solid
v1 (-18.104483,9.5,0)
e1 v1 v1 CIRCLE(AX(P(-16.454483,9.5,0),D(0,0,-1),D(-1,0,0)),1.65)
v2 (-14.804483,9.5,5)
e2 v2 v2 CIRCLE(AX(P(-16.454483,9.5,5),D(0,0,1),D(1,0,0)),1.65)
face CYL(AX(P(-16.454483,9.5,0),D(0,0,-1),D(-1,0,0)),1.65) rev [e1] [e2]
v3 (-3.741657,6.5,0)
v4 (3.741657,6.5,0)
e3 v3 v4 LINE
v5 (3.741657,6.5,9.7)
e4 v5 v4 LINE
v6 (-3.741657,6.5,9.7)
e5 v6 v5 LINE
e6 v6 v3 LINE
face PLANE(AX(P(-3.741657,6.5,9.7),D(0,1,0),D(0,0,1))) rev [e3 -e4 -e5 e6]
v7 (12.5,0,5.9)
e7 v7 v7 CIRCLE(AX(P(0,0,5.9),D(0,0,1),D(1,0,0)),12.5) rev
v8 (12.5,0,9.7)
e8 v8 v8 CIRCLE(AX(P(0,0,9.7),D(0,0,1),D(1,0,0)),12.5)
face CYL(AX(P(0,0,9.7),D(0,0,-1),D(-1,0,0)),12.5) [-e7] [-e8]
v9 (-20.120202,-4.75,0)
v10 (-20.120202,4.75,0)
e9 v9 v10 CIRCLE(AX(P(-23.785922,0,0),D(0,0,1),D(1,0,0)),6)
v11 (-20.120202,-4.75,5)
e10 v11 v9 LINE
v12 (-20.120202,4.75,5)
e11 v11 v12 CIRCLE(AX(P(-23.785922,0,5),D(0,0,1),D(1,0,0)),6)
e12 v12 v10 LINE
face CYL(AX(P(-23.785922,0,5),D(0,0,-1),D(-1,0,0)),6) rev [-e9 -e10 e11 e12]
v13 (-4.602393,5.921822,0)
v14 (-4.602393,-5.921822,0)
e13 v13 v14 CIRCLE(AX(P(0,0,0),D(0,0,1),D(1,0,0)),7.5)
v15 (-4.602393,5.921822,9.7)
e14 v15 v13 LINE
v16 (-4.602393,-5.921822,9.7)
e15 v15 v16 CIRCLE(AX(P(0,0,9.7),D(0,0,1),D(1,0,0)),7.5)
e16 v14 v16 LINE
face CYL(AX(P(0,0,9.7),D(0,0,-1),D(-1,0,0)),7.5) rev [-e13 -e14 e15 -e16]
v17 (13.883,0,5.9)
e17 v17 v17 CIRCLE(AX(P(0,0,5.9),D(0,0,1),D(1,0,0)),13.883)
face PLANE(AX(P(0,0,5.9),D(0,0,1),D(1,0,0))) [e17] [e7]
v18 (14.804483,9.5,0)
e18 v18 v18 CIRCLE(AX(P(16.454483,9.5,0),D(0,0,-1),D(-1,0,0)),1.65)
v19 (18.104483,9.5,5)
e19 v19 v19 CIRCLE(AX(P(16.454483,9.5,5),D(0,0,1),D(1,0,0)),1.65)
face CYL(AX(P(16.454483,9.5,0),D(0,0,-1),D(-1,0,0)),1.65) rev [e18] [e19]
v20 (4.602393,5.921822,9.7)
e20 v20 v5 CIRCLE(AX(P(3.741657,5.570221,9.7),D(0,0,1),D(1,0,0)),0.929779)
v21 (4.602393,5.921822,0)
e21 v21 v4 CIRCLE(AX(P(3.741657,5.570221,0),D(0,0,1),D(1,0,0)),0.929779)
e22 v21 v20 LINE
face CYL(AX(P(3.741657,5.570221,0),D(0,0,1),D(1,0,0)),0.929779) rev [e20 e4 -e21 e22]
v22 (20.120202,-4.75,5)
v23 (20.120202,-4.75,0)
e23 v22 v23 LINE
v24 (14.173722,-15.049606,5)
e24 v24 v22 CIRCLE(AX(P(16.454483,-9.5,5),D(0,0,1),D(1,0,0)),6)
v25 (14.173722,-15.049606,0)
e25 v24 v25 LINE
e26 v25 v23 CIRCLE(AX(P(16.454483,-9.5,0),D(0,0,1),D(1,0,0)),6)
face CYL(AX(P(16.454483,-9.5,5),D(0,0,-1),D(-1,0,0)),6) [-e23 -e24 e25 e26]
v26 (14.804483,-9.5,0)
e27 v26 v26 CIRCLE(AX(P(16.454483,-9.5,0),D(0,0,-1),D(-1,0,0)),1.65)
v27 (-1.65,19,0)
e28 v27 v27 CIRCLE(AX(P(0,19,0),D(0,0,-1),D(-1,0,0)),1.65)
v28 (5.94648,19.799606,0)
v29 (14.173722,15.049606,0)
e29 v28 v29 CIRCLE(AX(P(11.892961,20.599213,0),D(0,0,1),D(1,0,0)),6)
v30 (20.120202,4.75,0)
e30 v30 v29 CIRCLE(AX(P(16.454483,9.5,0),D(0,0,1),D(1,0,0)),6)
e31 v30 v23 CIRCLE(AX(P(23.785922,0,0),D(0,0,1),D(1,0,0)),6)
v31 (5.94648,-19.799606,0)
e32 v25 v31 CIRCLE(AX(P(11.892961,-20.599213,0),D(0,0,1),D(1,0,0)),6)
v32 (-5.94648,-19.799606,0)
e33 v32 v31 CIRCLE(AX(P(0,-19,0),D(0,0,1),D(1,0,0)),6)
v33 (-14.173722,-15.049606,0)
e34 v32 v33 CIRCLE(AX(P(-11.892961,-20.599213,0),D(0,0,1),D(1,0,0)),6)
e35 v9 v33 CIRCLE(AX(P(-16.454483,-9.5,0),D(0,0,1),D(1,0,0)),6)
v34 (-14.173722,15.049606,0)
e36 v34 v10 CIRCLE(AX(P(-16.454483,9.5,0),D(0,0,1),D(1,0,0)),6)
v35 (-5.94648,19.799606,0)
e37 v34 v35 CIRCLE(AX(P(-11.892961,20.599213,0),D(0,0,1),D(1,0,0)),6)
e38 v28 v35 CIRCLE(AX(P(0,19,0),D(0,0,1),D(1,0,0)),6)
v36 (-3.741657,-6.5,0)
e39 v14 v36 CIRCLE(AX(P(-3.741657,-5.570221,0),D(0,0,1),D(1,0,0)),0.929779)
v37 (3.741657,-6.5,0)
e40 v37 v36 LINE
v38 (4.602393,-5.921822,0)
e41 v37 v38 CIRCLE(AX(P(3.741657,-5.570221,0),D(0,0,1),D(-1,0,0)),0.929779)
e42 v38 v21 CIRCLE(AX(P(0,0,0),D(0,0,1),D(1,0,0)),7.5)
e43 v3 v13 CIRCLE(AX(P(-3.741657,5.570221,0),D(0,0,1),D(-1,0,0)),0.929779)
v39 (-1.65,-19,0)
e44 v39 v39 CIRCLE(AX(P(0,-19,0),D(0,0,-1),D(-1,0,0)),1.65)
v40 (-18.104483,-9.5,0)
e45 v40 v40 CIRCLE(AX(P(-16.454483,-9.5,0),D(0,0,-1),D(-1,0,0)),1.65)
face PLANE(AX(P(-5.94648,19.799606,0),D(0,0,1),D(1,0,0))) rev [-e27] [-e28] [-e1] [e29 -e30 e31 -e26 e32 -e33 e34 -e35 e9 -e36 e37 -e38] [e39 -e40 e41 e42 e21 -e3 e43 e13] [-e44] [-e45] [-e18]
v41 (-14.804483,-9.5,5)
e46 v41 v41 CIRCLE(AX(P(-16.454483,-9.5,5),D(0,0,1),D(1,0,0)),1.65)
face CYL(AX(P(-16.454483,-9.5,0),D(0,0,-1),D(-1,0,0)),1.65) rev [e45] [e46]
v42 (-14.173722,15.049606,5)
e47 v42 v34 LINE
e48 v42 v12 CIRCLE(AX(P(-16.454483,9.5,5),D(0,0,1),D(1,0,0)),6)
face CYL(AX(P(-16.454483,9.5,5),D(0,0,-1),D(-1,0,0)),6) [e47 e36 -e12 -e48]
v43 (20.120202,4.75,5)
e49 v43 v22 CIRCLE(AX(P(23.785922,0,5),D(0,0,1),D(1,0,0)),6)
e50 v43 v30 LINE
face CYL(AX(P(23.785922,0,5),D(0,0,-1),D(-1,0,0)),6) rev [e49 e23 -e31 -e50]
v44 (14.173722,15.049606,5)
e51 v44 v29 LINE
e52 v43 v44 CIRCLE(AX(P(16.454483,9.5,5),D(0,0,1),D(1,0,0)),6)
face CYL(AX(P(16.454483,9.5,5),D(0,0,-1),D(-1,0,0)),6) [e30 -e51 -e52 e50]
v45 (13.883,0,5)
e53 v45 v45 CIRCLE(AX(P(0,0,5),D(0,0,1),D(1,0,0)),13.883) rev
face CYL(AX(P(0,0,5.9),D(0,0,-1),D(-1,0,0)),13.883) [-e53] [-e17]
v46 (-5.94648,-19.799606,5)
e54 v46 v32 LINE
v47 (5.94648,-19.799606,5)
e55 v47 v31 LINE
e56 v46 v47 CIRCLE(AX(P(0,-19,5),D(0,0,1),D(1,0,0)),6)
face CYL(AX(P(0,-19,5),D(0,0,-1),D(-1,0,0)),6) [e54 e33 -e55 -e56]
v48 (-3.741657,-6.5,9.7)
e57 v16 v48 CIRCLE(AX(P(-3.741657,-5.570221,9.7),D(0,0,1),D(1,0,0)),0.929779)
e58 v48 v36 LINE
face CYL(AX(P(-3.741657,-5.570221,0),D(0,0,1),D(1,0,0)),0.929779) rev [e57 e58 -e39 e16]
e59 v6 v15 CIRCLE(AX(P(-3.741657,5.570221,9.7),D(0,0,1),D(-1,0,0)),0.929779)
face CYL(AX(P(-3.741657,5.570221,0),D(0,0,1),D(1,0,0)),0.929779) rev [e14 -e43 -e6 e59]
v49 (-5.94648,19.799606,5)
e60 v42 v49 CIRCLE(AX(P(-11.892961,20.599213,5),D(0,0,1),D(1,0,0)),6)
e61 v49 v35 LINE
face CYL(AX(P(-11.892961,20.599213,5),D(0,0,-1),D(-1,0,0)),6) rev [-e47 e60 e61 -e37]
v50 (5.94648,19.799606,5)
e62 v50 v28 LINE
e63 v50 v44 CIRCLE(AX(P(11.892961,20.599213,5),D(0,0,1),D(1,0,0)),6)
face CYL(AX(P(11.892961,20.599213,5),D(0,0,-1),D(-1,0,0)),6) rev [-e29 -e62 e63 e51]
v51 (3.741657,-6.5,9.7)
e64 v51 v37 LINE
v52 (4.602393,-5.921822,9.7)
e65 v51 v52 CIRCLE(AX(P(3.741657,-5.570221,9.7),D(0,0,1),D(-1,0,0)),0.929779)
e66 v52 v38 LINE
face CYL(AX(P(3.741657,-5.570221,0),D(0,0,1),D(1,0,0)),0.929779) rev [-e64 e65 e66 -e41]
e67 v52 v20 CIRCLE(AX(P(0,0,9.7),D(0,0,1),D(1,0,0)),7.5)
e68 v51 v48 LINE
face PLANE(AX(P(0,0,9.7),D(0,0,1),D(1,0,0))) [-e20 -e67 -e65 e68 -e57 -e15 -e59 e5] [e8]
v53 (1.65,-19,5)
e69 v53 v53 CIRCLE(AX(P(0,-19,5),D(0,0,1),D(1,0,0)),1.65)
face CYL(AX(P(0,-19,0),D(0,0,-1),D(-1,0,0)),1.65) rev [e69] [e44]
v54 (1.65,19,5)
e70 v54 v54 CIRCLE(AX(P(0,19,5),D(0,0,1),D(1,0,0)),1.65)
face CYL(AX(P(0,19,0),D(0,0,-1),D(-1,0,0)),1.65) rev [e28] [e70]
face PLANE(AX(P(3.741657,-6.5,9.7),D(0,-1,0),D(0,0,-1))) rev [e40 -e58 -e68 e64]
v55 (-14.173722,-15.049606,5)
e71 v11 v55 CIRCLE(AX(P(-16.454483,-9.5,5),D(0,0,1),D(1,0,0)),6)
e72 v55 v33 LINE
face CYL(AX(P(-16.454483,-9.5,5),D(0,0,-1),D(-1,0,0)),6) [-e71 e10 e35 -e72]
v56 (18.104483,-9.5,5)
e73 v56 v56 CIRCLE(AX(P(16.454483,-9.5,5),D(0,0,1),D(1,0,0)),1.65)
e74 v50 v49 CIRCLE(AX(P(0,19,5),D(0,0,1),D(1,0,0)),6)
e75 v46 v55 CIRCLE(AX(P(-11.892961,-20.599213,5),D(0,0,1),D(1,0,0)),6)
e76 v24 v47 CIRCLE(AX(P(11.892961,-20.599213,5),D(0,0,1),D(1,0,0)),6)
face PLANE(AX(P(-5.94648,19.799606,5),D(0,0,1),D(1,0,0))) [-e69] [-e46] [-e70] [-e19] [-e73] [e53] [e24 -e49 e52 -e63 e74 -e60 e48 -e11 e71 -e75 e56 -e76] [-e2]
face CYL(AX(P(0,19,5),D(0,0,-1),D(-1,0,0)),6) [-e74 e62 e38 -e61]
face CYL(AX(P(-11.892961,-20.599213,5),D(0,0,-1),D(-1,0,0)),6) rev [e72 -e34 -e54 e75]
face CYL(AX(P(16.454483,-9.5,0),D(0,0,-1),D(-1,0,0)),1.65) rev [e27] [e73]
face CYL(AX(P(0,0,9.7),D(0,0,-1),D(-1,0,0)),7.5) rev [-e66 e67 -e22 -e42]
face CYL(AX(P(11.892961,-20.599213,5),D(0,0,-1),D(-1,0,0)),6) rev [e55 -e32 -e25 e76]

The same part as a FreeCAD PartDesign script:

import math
import FreeCAD as App
import Part
import Sketcher

V = App.Vector
Q = App.Units.Quantity

doc = App.newDocument("Part")
body = doc.addObject("PartDesign::Body", "Body")

sketch1 = body.newObject("Sketcher::SketchObject", "Sketch")
sketch1.AttachmentSupport = (doc.getObject("XY_Plane"), [""])
sketch1.MapMode = "FlatFace"
sketch1.addGeometry(Part.ArcOfCircle(Part.Circle(V(0, 19, 0), V(0, 0, 1), 6), math.radians(8), math.radians(172)), False)
sketch1.addGeometry(Part.ArcOfCircle(Part.Circle(V(-12, 21, 0), V(0, 0, 1), 6), math.radians(-112), math.radians(-8)), False)
sketch1.addGeometry(Part.ArcOfCircle(Part.Circle(V(-16, 10, 0), V(0, 0, 1), 6), math.radians(68), math.radians(232)), False)
sketch1.addGeometry(Part.ArcOfCircle(Part.Circle(V(-24, 0, 0), V(0, 0, 1), 6), math.radians(-52), math.radians(52)), False)
sketch1.addGeometry(Part.ArcOfCircle(Part.Circle(V(-16, -10, 0), V(0, 0, 1), 6), math.radians(128), math.radians(292)), False)
sketch1.addGeometry(Part.ArcOfCircle(Part.Circle(V(-12, -21, 0), V(0, 0, 1), 6), math.radians(8), math.radians(112)), False)
sketch1.addGeometry(Part.ArcOfCircle(Part.Circle(V(0, -19, 0), V(0, 0, 1), 6), math.radians(-172), math.radians(-8)), False)
sketch1.addGeometry(Part.ArcOfCircle(Part.Circle(V(12, -21, 0), V(0, 0, 1), 6), math.radians(68), math.radians(172)), False)
sketch1.addGeometry(Part.ArcOfCircle(Part.Circle(V(16, -10, 0), V(0, 0, 1), 6), math.radians(-112), math.radians(52)), False)
sketch1.addGeometry(Part.ArcOfCircle(Part.Circle(V(24, 0, 0), V(0, 0, 1), 6), math.radians(128), math.radians(232)), False)
sketch1.addGeometry(Part.ArcOfCircle(Part.Circle(V(16, 10, 0), V(0, 0, 1), 6), math.radians(-52), math.radians(112)), False)
sketch1.addGeometry(Part.ArcOfCircle(Part.Circle(V(12, 21, 0), V(0, 0, 1), 6), math.radians(-172), math.radians(-68)), False)
sketch1.addConstraint(Sketcher.Constraint("Tangent", 0, 2, 1, 2))
sketch1.addConstraint(Sketcher.Constraint("Tangent", 1, 1, 2, 1))
sketch1.addConstraint(Sketcher.Constraint("Tangent", 2, 2, 3, 2))
sketch1.addConstraint(Sketcher.Constraint("Tangent", 3, 1, 4, 1))
sketch1.addConstraint(Sketcher.Constraint("Tangent", 4, 2, 5, 2))
sketch1.addConstraint(Sketcher.Constraint("Tangent", 5, 1, 6, 1))
sketch1.addConstraint(Sketcher.Constraint("Tangent", 6, 2, 7, 2))
sketch1.addConstraint(Sketcher.Constraint("Tangent", 7, 1, 8, 1))
sketch1.addConstraint(Sketcher.Constraint("Tangent", 8, 2, 9, 2))
sketch1.addConstraint(Sketcher.Constraint("Tangent", 9, 1, 10, 1))
sketch1.addConstraint(Sketcher.Constraint("Tangent", 10, 2, 11, 2))
sketch1.addConstraint(Sketcher.Constraint("Tangent", 11, 1, 0, 1))
sketch1.addConstraint(Sketcher.Constraint("Equal", 0, 1))
sketch1.addConstraint(Sketcher.Constraint("Equal", 1, 2))
sketch1.addConstraint(Sketcher.Constraint("Equal", 2, 3))
sketch1.addConstraint(Sketcher.Constraint("Equal", 3, 4))
sketch1.addConstraint(Sketcher.Constraint("Equal", 4, 5))
sketch1.addConstraint(Sketcher.Constraint("Equal", 5, 6))
sketch1.addConstraint(Sketcher.Constraint("Equal", 6, 7))
sketch1.addConstraint(Sketcher.Constraint("Equal", 7, 8))
sketch1.addConstraint(Sketcher.Constraint("Equal", 8, 9))
sketch1.addConstraint(Sketcher.Constraint("Equal", 9, 10))
sketch1.addConstraint(Sketcher.Constraint("Equal", 10, 11))
sketch1.addConstraint(Sketcher.Constraint("Symmetric", 0, 3, 6, 3, -1, 1))
sketch1.addConstraint(Sketcher.Constraint("Symmetric", 2, 3, 8, 3, -1, 1))
sketch1.addConstraint(Sketcher.Constraint("Symmetric", 4, 3, 10, 3, -1, 1))
sketch1.addConstraint(Sketcher.Constraint("Symmetric", 5, 3, 7, 3, -2))
sketch1.addConstraint(Sketcher.Constraint("PointOnObject", 3, 3, -1))
sketch1.addConstraint(Sketcher.Constraint("Radius", 0, Q("6 mm")))
sketch1.addConstraint(Sketcher.Constraint("DistanceY", -1, 1, 0, 3, Q("19 mm")))
sketch1.addConstraint(Sketcher.Constraint("DistanceY", 4, 3, 2, 3, Q("19 mm")))
sketch1.addConstraint(Sketcher.Constraint("DistanceX", 3, 3, 1, 1, Q("9.6122 mm")))
pad1 = body.newObject("PartDesign::Pad", "Pad")
pad1.Profile = sketch1
pad1.Length = 5

sketch2 = body.newObject("Sketcher::SketchObject", "Sketch001")
sketch2.AttachmentSupport = (doc.getObject("XY_Plane"), [""])
sketch2.MapMode = "FlatFace"
sketch2.addGeometry(Part.Circle(V(0, 0, 0), V(0, 0, 1), 14), False)
sketch2.addConstraint(Sketcher.Constraint("Coincident", 0, 3, -1, 1))
sketch2.addConstraint(Sketcher.Constraint("Diameter", 0, Q("27.766 mm")))
pad2 = body.newObject("PartDesign::Pad", "Pad001")
pad2.Profile = sketch2
pad2.Length = 5.9

sketch3 = body.newObject("Sketcher::SketchObject", "Sketch002")
sketch3.AttachmentSupport = (doc.getObject("XY_Plane"), [""])
sketch3.MapMode = "FlatFace"
sketch3.addGeometry(Part.Circle(V(0, 0, 0), V(0, 0, 1), 12), False)
sketch3.addConstraint(Sketcher.Constraint("Coincident", 0, 3, -1, 1))
sketch3.addConstraint(Sketcher.Constraint("Diameter", 0, Q("25 mm")))
pad3 = body.newObject("PartDesign::Pad", "Pad002")
pad3.Profile = sketch3
pad3.Length = 9.7

sketch4 = body.newObject("Sketcher::SketchObject", "Sketch003")
sketch4.AttachmentSupport = (doc.getObject("XY_Plane"), [""])
sketch4.MapMode = "FlatFace"
sketch4.addGeometry(Part.LineSegment(V(4, 6, 0), V(-4, 6, 0)), False)
sketch4.addGeometry(Part.ArcOfCircle(Part.Circle(V(0, 0, 0), V(0, 0, 1), 8), math.radians(120), math.radians(240)), False)
sketch4.addGeometry(Part.LineSegment(V(-4, -6, 0), V(4, -6, 0)), False)
sketch4.addGeometry(Part.ArcOfCircle(Part.Circle(V(0, 0, 0), V(0, 0, 1), 8), math.radians(-60), math.radians(60)), False)
sketch4.addConstraint(Sketcher.Constraint("Coincident", 0, 2, 1, 1))
sketch4.addConstraint(Sketcher.Constraint("Coincident", 1, 2, 2, 1))
sketch4.addConstraint(Sketcher.Constraint("Coincident", 2, 2, 3, 1))
sketch4.addConstraint(Sketcher.Constraint("Coincident", 3, 2, 0, 1))
sketch4.addConstraint(Sketcher.Constraint("Horizontal", 0))
sketch4.addConstraint(Sketcher.Constraint("Horizontal", 2))
sketch4.addConstraint(Sketcher.Constraint("Coincident", 1, 3, -1, 1))
sketch4.addConstraint(Sketcher.Constraint("Coincident", 3, 3, -1, 1))
sketch4.addConstraint(Sketcher.Constraint("Equal", 1, 3))
sketch4.addConstraint(Sketcher.Constraint("Vertical", 0, 2, 1, 2))
sketch4.addConstraint(Sketcher.Constraint("Radius", 1, Q("7.5 mm")))
sketch4.addConstraint(Sketcher.Constraint("DistanceY", 1, 2, 0, 2, Q("13 mm")))
pocket1 = body.newObject("PartDesign::Pocket", "Pocket")
pocket1.Profile = sketch4
pocket1.Type = "ThroughAll"
pocket1.Reversed = True

sketch5 = body.newObject("Sketcher::SketchObject", "Sketch004")
sketch5.AttachmentSupport = (doc.getObject("XY_Plane"), [""])
sketch5.MapMode = "FlatFace"
sketch5.addGeometry(Part.Circle(V(0, 19, 0), V(0, 0, 1), 1.6), False)
sketch5.addGeometry(Part.Circle(V(16.5, 9.5, 0), V(0, 0, 1), 1.6), False)
sketch5.addGeometry(Part.Circle(V(16.5, -9.5, 0), V(0, 0, 1), 1.6), False)
sketch5.addGeometry(Part.Circle(V(0, -19, 0), V(0, 0, 1), 1.6), False)
sketch5.addGeometry(Part.Circle(V(-16.5, -9.5, 0), V(0, 0, 1), 1.6), False)
sketch5.addGeometry(Part.Circle(V(-16.5, 9.5, 0), V(0, 0, 1), 1.6), False)
sketch5.addConstraint(Sketcher.Constraint("Equal", 0, 1))
sketch5.addConstraint(Sketcher.Constraint("Equal", 1, 2))
sketch5.addConstraint(Sketcher.Constraint("Equal", 2, 3))
sketch5.addConstraint(Sketcher.Constraint("Equal", 3, 4))
sketch5.addConstraint(Sketcher.Constraint("Equal", 4, 5))
sketch5.addConstraint(Sketcher.Constraint("Symmetric", 0, 3, 3, 3, -1, 1))
sketch5.addConstraint(Sketcher.Constraint("Symmetric", 1, 3, 4, 3, -1, 1))
sketch5.addConstraint(Sketcher.Constraint("Symmetric", 2, 3, 5, 3, -1, 1))
sketch5.addConstraint(Sketcher.Constraint("Symmetric", 2, 3, 4, 3, -2))
sketch5.addConstraint(Sketcher.Constraint("PointOnObject", 0, 3, -2))
sketch5.addConstraint(Sketcher.Constraint("Diameter", 0, Q("3.3 mm")))
sketch5.addConstraint(Sketcher.Constraint("DistanceY", -1, 1, 0, 3, Q("19 mm")))
sketch5.addConstraint(Sketcher.Constraint("DistanceY", 2, 3, 1, 3, Q("19 mm")))
sketch5.addConstraint(Sketcher.Constraint("DistanceX", -1, 1, 1, 3, Q("16.454483 mm")))
doc.recompute()
hole = body.newObject("PartDesign::Hole", "Hole")
hole.Profile = sketch5
hole.ThreadType = "None"
hole.Diameter = 3.3
hole.DepthType = "ThroughAll"
hole.Reversed = True

sketch6 = body.newObject("Sketcher::SketchObject", "Sketch005")
sketch6.AttachmentSupport = (doc.getObject("XY_Plane"), [""])
sketch6.MapMode = "FlatFace"
sketch6.AttachmentOffset = App.Placement(V(0, 0, 9.7), App.Rotation())
sketch6.addGeometry(Part.Circle(V(3.7, 5.6, 0), V(0, 0, 1), 0.9), False)
sketch6.addGeometry(Part.Circle(V(3.7, -5.6, 0), V(0, 0, 1), 0.9), False)
sketch6.addGeometry(Part.Circle(V(-3.7, -5.6, 0), V(0, 0, 1), 0.9), False)
sketch6.addGeometry(Part.Circle(V(-3.7, 5.6, 0), V(0, 0, 1), 0.9), False)
sketch6.addConstraint(Sketcher.Constraint("Equal", 0, 1))
sketch6.addConstraint(Sketcher.Constraint("Equal", 1, 2))
sketch6.addConstraint(Sketcher.Constraint("Equal", 2, 3))
sketch6.addConstraint(Sketcher.Constraint("Symmetric", 0, 3, 2, 3, -1, 1))
sketch6.addConstraint(Sketcher.Constraint("Symmetric", 1, 3, 3, 3, -1, 1))
sketch6.addConstraint(Sketcher.Constraint("Symmetric", 1, 3, 2, 3, -2))
sketch6.addConstraint(Sketcher.Constraint("Diameter", 0, Q("1.859559 mm")))
sketch6.addConstraint(Sketcher.Constraint("DistanceY", -1, 1, 0, 3, Q("5.570221 mm")))
sketch6.addConstraint(Sketcher.Constraint("DistanceX", -1, 1, 0, 3, Q("3.741657 mm")))
pocket2 = body.newObject("PartDesign::Pocket", "Pocket001")
pocket2.Profile = sketch6
pocket2.Type = "ThroughAll"

doc.recompute()
